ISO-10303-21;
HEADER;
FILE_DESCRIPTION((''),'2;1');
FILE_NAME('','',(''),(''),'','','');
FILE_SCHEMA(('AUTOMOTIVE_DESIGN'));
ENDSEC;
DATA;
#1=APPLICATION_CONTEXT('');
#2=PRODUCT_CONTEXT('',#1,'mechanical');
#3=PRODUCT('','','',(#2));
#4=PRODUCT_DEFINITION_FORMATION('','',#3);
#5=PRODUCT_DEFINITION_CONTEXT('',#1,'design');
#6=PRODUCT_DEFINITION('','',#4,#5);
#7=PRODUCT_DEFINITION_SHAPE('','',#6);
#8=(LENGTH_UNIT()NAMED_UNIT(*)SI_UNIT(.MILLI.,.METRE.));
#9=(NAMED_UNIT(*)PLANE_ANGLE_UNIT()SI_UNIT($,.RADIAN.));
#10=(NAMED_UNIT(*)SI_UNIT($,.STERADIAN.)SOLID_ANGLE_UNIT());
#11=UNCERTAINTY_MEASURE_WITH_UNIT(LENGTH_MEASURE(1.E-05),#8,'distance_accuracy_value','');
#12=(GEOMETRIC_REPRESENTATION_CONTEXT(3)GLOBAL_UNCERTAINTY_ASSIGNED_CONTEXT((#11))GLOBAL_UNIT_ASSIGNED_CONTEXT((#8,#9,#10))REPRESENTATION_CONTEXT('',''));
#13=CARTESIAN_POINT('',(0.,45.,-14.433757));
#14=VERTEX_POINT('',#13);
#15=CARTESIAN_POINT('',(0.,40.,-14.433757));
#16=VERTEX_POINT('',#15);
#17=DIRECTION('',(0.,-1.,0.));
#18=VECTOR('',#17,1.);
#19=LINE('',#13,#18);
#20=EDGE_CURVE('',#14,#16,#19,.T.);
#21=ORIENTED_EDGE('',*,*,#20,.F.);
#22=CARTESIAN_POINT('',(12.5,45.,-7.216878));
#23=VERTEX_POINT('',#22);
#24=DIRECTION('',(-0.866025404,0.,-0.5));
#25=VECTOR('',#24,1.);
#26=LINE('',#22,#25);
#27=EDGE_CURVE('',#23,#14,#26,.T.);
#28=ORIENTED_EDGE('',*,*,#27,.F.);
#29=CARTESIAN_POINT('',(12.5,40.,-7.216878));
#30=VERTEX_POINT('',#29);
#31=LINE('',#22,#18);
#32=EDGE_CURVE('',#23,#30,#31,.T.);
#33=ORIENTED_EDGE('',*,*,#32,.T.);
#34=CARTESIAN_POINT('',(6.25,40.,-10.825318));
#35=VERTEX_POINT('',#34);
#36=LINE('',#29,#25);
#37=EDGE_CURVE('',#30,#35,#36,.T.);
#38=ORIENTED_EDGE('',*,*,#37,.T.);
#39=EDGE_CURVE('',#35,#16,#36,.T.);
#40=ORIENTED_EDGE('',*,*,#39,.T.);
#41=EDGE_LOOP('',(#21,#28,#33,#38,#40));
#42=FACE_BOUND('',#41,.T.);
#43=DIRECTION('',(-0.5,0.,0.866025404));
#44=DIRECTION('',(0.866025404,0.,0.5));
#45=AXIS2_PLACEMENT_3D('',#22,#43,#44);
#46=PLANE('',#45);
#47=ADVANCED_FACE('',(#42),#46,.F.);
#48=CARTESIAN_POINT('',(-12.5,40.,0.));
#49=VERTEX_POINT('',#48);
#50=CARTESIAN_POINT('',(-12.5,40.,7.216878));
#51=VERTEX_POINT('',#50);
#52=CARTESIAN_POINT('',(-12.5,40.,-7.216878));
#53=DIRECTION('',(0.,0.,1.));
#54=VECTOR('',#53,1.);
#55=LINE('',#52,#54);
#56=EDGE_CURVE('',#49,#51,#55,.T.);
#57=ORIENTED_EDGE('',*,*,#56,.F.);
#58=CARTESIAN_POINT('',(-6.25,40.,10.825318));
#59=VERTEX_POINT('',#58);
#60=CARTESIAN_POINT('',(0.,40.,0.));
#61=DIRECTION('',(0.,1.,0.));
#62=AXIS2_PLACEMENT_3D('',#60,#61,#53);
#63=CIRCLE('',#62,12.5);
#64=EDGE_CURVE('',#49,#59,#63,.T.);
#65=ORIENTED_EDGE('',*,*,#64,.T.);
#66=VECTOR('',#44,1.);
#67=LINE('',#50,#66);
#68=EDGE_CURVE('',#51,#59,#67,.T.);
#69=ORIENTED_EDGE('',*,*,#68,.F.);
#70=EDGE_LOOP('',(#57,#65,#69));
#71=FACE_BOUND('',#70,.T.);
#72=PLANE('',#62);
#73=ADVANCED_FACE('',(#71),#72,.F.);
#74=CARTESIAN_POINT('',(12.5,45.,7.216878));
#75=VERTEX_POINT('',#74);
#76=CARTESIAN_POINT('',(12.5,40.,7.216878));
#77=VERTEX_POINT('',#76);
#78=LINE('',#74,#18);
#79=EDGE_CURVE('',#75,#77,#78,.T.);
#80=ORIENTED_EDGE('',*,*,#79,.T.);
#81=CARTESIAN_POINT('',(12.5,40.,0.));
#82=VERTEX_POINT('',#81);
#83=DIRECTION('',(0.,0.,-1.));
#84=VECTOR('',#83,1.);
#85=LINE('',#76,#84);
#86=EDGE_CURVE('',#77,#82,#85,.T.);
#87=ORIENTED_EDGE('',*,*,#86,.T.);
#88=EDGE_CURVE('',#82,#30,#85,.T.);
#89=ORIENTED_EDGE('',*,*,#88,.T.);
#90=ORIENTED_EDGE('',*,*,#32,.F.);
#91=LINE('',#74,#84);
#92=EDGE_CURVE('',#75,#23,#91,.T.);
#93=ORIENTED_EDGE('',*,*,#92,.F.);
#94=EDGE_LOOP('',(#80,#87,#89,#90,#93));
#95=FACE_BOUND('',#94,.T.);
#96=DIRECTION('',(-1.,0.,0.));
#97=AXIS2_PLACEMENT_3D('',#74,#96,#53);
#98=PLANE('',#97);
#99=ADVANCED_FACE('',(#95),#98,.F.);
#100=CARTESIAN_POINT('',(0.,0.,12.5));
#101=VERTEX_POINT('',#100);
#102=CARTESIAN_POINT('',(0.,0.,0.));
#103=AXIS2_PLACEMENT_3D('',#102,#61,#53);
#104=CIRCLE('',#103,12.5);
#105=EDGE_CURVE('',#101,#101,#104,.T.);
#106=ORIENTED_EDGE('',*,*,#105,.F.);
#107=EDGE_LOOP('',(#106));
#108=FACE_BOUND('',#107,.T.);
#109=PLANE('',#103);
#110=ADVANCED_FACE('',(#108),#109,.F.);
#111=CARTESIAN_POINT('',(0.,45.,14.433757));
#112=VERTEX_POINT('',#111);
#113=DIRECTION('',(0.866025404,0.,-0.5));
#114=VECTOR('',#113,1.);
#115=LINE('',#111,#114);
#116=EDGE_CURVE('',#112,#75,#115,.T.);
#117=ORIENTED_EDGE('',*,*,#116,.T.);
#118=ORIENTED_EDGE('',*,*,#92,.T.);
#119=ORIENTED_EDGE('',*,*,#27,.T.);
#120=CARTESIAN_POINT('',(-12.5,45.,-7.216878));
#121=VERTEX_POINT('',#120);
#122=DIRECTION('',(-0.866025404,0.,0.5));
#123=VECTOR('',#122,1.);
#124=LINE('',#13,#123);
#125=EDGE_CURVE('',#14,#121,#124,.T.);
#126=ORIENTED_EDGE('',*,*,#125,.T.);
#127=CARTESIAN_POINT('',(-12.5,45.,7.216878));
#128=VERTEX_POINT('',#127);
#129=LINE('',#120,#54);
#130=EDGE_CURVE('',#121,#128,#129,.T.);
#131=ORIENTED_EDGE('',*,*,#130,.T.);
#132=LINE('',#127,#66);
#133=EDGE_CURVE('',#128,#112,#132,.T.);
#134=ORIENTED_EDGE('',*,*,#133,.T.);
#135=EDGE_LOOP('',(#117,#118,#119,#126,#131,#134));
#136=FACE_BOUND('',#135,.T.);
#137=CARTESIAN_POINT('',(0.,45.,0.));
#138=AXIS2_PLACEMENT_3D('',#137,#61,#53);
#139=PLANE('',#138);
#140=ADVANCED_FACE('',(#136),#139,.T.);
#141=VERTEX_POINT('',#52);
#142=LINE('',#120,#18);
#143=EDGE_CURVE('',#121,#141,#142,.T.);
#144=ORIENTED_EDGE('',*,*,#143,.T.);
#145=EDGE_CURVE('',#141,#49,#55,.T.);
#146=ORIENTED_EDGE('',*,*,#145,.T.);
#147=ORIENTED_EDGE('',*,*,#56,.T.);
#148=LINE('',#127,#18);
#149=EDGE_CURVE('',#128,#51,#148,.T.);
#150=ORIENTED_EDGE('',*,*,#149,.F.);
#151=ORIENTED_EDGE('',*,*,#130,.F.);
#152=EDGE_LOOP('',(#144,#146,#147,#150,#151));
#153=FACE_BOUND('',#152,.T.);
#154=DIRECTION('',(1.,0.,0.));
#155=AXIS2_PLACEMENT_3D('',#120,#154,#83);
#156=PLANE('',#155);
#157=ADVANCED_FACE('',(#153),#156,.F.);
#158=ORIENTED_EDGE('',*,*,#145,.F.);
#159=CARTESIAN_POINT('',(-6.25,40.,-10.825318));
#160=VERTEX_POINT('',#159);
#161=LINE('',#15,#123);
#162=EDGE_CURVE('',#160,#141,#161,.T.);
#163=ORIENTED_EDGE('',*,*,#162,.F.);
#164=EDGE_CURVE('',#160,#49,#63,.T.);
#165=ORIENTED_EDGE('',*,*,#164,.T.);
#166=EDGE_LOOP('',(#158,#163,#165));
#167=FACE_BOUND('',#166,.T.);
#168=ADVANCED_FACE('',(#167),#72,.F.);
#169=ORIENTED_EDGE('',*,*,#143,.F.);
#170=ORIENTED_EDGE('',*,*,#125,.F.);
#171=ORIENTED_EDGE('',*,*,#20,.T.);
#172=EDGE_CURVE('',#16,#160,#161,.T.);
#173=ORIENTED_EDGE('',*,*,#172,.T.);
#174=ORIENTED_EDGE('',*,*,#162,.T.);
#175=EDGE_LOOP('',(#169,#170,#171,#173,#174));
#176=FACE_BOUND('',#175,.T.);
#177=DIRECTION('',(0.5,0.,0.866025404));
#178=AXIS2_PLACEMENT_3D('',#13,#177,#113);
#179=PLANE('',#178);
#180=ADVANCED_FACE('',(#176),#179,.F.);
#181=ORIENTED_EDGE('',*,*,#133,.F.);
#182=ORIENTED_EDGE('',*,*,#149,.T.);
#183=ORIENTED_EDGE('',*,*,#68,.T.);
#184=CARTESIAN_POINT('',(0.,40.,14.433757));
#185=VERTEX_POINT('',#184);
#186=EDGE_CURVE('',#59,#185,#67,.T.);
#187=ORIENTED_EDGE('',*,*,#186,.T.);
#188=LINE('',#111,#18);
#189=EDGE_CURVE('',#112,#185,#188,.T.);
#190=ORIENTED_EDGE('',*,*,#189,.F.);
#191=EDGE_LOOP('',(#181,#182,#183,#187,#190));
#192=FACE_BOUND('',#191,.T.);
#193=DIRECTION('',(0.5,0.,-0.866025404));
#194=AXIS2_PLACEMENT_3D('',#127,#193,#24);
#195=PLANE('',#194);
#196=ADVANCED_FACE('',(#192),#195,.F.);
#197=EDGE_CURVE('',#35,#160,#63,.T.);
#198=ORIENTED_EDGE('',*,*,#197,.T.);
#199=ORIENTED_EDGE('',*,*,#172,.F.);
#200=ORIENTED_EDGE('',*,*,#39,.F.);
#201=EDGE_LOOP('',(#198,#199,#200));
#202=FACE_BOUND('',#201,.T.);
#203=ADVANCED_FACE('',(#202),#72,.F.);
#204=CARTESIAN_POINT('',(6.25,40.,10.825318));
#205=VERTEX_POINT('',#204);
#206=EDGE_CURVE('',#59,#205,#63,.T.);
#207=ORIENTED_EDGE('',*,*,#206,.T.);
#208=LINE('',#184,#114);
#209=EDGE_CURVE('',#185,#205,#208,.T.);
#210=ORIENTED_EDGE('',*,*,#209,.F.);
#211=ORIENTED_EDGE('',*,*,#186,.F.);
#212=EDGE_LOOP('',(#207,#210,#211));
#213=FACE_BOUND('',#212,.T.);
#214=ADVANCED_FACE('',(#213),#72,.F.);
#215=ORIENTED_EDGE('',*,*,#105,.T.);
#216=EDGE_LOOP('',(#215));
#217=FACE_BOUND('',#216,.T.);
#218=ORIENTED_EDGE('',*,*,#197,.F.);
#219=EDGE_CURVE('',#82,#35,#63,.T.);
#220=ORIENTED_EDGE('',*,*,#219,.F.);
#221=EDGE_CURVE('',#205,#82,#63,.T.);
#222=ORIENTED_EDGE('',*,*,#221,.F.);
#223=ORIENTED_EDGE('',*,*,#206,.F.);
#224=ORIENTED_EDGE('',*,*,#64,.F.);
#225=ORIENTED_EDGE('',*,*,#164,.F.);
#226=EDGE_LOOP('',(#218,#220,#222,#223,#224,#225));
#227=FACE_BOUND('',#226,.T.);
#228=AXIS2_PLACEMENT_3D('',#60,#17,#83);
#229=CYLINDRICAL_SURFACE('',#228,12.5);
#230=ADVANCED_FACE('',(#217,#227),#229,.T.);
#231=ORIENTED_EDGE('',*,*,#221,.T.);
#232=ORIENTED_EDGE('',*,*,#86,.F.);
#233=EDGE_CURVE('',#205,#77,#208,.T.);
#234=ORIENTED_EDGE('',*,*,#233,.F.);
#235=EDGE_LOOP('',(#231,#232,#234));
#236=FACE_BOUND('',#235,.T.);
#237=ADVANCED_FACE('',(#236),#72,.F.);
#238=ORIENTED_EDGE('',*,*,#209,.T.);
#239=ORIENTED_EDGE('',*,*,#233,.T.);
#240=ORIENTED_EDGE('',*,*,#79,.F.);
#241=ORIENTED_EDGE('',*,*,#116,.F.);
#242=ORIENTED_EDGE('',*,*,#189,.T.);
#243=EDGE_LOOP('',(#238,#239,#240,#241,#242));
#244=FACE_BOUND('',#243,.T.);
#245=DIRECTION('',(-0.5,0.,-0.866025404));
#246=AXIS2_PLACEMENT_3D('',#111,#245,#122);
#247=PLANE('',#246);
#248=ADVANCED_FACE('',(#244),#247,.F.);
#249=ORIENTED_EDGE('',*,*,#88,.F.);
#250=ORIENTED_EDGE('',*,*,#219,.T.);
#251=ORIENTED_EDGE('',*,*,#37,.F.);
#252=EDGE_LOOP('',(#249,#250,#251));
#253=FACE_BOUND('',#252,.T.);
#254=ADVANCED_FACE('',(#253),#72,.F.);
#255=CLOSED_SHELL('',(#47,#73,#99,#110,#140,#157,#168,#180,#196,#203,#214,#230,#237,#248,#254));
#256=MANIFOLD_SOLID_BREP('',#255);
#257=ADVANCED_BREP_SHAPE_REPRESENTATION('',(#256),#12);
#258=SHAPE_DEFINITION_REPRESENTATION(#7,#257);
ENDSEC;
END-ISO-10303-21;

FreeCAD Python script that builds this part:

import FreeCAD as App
import Part
import Sketcher

V = App.Vector
Q = App.Units.Quantity


def add_polygon(sketch, points):
    """Adds a closed chain of lines whose ends are joined by coincident constraints."""
    first, n = sketch.GeometryCount, len(points)
    for a, b in zip(points, points[1:] + points[:1]):
        sketch.addGeometry(Part.LineSegment(App.Vector(*a, 0), App.Vector(*b, 0)), False)
    for i in range(n):
        sketch.addConstraint(Sketcher.Constraint("Coincident", first + i, 2, first + (i + 1) % n, 1))

doc = App.newDocument("Part")
body = doc.addObject("PartDesign::Body", "Body")

# Sketch on XZ plane
sketch1 = doc.addObject("Sketcher::SketchObject", "Sketch")
body.addObject(sketch1)
sketch1.AttachmentSupport = (doc.XZ_Plane, [""])
sketch1.MapMode = "FlatFace"
sketch1.addGeometry(Part.Circle(V(0, 0, 0), V(0, 0, 1), 12.5), False)
sketch1.addConstraint([
    Sketcher.Constraint("Coincident", 0, 3, -1, 1),
    Sketcher.Constraint("Diameter", 0, 25.0),
])
pad1 = doc.addObject("PartDesign::Pad", "Pad")
body.addObject(pad1)
pad1.Profile = sketch1
pad1.Length = 40
pad1.Reversed = True

# Sketch on XZ plane
sketch2 = doc.addObject("Sketcher::SketchObject", "Sketch001")
body.addObject(sketch2)
sketch2.AttachmentSupport = (doc.XZ_Plane, [""])
sketch2.MapMode = "FlatFace"
sketch2.AttachmentOffset = App.Placement(V(0, 0, -40), App.Rotation())
add_polygon(sketch2, [(0, 14.433757), (12.5, 7.216878), (12.5, -7.216878), (0, -14.433757), (-12.5, -7.216878), (-12.5, 7.216878)])  # lines 0-5
sketch2.addConstraint([
    Sketcher.Constraint("Vertical", 1),
    Sketcher.Constraint("Vertical", 4),
    Sketcher.Constraint("Symmetric", 0, 2, 3, 2, -1, 1),
    Sketcher.Constraint("Symmetric", 2, 2, 5, 2, -1, 1),
    Sketcher.Constraint("PointOnObject", 2, 2, -2),
    Sketcher.Constraint("Parallel", 2, 5),
    Sketcher.Constraint("Horizontal", 1, 2, 3, 2),
    Sketcher.Constraint("Angle", 0, Q("-30 deg")),
    Sketcher.Constraint("DistanceX", 3, 2, 1, 2, 25.0),
    Sketcher.Constraint("DistanceY", 1, 2, 1, 1, 14.433757),
])
pad2 = doc.addObject("PartDesign::Pad", "Pad001")
body.addObject(pad2)
pad2.Profile = sketch2
pad2.Length = 5
pad2.Reversed = True

doc.recompute()
